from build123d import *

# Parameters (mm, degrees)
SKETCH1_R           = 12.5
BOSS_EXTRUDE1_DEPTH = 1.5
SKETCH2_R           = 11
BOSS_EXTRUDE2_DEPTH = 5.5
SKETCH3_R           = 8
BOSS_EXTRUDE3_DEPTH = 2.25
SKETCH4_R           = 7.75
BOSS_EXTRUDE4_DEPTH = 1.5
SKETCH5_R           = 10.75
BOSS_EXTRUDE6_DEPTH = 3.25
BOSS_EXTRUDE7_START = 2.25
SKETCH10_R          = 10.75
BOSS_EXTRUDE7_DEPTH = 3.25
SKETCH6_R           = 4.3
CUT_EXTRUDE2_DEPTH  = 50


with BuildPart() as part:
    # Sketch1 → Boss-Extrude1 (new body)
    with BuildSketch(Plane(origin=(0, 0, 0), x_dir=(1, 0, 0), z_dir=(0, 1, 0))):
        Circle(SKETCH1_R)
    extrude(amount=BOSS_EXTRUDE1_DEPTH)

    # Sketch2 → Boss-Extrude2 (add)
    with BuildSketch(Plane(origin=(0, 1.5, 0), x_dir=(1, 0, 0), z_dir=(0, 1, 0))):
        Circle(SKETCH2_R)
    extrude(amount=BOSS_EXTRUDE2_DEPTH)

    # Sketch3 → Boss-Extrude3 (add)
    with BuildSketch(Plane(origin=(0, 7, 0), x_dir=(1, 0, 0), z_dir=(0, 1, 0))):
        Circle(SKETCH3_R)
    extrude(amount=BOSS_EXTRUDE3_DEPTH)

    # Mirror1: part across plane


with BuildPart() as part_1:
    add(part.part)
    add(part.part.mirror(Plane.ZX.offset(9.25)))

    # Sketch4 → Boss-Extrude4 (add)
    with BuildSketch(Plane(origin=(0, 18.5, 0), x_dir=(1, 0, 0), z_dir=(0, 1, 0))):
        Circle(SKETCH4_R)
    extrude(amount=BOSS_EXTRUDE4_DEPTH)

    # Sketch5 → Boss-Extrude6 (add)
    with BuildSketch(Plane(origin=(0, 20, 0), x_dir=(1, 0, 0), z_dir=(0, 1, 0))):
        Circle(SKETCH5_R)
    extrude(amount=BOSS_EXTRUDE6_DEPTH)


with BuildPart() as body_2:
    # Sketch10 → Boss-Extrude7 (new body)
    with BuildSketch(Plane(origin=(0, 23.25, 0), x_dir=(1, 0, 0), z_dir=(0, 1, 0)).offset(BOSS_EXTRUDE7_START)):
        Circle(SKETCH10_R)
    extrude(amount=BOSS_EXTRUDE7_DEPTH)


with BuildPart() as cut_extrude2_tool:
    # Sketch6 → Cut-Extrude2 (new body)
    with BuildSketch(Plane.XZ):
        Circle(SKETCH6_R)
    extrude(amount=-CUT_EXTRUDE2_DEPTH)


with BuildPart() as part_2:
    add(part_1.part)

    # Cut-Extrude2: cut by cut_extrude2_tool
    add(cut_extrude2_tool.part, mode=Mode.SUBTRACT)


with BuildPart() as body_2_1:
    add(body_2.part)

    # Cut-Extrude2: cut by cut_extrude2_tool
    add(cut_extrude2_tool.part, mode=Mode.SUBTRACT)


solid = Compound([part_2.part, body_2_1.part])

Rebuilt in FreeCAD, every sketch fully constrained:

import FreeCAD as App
import Part
import Sketcher

doc = App.newDocument("Part")
params = doc.addObject("Spreadsheet::Sheet", "Params")
for row, (alias, value) in enumerate([
    ("sketch1_diameter", "25 mm"),
    ("pad1_length", "1.5 mm"),
    ("sketch2_diameter", "22 mm"),
    ("pad2_length", "5.5 mm"),
    ("sketch3_diameter", "16 mm"),
    ("pad3_length", "2.25 mm"),
    ("sketch4_diameter", "15.5 mm"),
    ("pad4_length", "1.5 mm"),
    ("sketch5_diameter", "21.5 mm"),
    ("pad5_length", "3.25 mm"),
    ("sketch6_diameter", "21.5 mm"),
    ("pad6_length", "3.25 mm"),
    ("sketch7_diameter", "8.6 mm"),
    ("pad7_length", "50 mm"),
], start=1):
    params.set(f"A{row}", alias)
    params.set(f"B{row}", "=" + value)
    params.setAlias(f"B{row}", alias)

body = doc.addObject("PartDesign::Body", "Body")

# Sketch on XZ plane
sketch1 = body.newObject("Sketcher::SketchObject", "Sketch")
sketch1.AttachmentSupport = (doc.getObject("XZ_Plane"), [""])
sketch1.MapMode = "FlatFace"
sketch1.addGeometry(Part.Circle(App.Vector(0, 0, 0), App.Vector(0, 0, 1), 12), False)
sketch1.addConstraint(Sketcher.Constraint("Coincident", 0, 3, -1, 1))
sketch1.addConstraint(Sketcher.Constraint("Diameter", 0, 25.0))
sketch1.setExpression("Constraints[1]", "Params.sketch1_diameter")
pad1 = body.newObject("PartDesign::Pad", "Pad")
pad1.Profile = sketch1
pad1.setExpression("Length", "Params.pad1_length")
pad1.Reversed = True

# Sketch on XZ plane
sketch2 = body.newObject("Sketcher::SketchObject", "Sketch001")
sketch2.AttachmentSupport = (doc.getObject("XZ_Plane"), [""])
sketch2.MapMode = "FlatFace"
sketch2.AttachmentOffset = App.Placement(App.Vector(0, 0, -1.5), App.Rotation())
sketch2.addGeometry(Part.Circle(App.Vector(0, 0, 0), App.Vector(0, 0, 1), 11), False)
sketch2.addConstraint(Sketcher.Constraint("Coincident", 0, 3, -1, 1))
sketch2.addConstraint(Sketcher.Constraint("Diameter", 0, 22.0))
sketch2.setExpression("Constraints[1]", "Params.sketch2_diameter")
pad2 = body.newObject("PartDesign::Pad", "Pad001")
pad2.Profile = sketch2
pad2.setExpression("Length", "Params.pad2_length")
pad2.Reversed = True

# Sketch on XZ plane
sketch3 = body.newObject("Sketcher::SketchObject", "Sketch002")
sketch3.AttachmentSupport = (doc.getObject("XZ_Plane"), [""])
sketch3.MapMode = "FlatFace"
sketch3.AttachmentOffset = App.Placement(App.Vector(0, 0, -7), App.Rotation())
sketch3.addGeometry(Part.Circle(App.Vector(0, 0, 0), App.Vector(0, 0, 1), 8), False)
sketch3.addConstraint(Sketcher.Constraint("Coincident", 0, 3, -1, 1))
sketch3.addConstraint(Sketcher.Constraint("Diameter", 0, 16.0))
sketch3.setExpression("Constraints[1]", "Params.sketch3_diameter")
pad3 = body.newObject("PartDesign::Pad", "Pad002")
pad3.Profile = sketch3
pad3.setExpression("Length", "Params.pad3_length")
pad3.Reversed = True
body2 = doc.addObject("PartDesign::Body", "Body001")
doc.recompute()

body2.BaseFeature = body
doc.recompute()

mirroring = doc.addObject("Part::Mirroring", "Mirroring")
mirroring.Source = body
mirroring.Base = App.Vector(0, 9.25, 0)
mirroring.Normal = App.Vector(0, 1, 0)
body3 = doc.addObject("PartDesign::Body", "Body002")
body3.BaseFeature = mirroring
boolean = body2.newObject("PartDesign::Boolean", "Boolean")
boolean.Type = "Fuse"
boolean.addObjects([body3])
doc.recompute()

# Sketch on XZ plane
sketch4 = body2.newObject("Sketcher::SketchObject", "Sketch003")
sketch4.AttachmentSupport = (doc.getObject("XZ_Plane001"), [""])
sketch4.MapMode = "FlatFace"
sketch4.AttachmentOffset = App.Placement(App.Vector(0, 0, -18.5), App.Rotation())
sketch4.addGeometry(Part.Circle(App.Vector(0, 0, 0), App.Vector(0, 0, 1), 8), False)
sketch4.addConstraint(Sketcher.Constraint("Coincident", 0, 3, -1, 1))
sketch4.addConstraint(Sketcher.Constraint("Diameter", 0, 15.5))
sketch4.setExpression("Constraints[1]", "Params.sketch4_diameter")
pad4 = body2.newObject("PartDesign::Pad", "Pad003")
pad4.Profile = sketch4
pad4.setExpression("Length", "Params.pad4_length")
pad4.Reversed = True

# Sketch on XZ plane
sketch5 = body2.newObject("Sketcher::SketchObject", "Sketch004")
sketch5.AttachmentSupport = (doc.getObject("XZ_Plane001"), [""])
sketch5.MapMode = "FlatFace"
sketch5.AttachmentOffset = App.Placement(App.Vector(0, 0, -20), App.Rotation())
sketch5.addGeometry(Part.Circle(App.Vector(0, 0, 0), App.Vector(0, 0, 1), 11), False)
sketch5.addConstraint(Sketcher.Constraint("Coincident", 0, 3, -1, 1))
sketch5.addConstraint(Sketcher.Constraint("Diameter", 0, 21.5))
sketch5.setExpression("Constraints[1]", "Params.sketch5_diameter")
pad5 = body2.newObject("PartDesign::Pad", "Pad004")
pad5.Profile = sketch5
pad5.setExpression("Length", "Params.pad5_length")
pad5.Reversed = True
body4 = doc.addObject("PartDesign::Body", "Body003")

# Sketch on XZ plane
sketch6 = body4.newObject("Sketcher::SketchObject", "Sketch005")
sketch6.AttachmentSupport = (doc.getObject("XZ_Plane003"), [""])
sketch6.MapMode = "FlatFace"
sketch6.AttachmentOffset = App.Placement(App.Vector(0, 0, -25.5), App.Rotation())
sketch6.addGeometry(Part.Circle(App.Vector(0, 0, 0), App.Vector(0, 0, 1), 11), False)
sketch6.addConstraint(Sketcher.Constraint("Coincident", 0, 3, -1, 1))
sketch6.addConstraint(Sketcher.Constraint("Diameter", 0, 21.5))
sketch6.setExpression("Constraints[1]", "Params.sketch6_diameter")
pad6 = body4.newObject("PartDesign::Pad", "Pad005")
pad6.Profile = sketch6
pad6.setExpression("Length", "Params.pad6_length")
pad6.Reversed = True
body5 = doc.addObject("PartDesign::Body", "Body004")

# Sketch on XZ plane
sketch7 = body5.newObject("Sketcher::SketchObject", "Sketch006")
sketch7.AttachmentSupport = (doc.getObject("XZ_Plane004"), [""])
sketch7.MapMode = "FlatFace"
sketch7.addGeometry(Part.Circle(App.Vector(0, 0, 0), App.Vector(0, 0, 1), 4.3), False)
sketch7.addConstraint(Sketcher.Constraint("Coincident", 0, 3, -1, 1))
sketch7.addConstraint(Sketcher.Constraint("Diameter", 0, 8.6))
sketch7.setExpression("Constraints[1]", "Params.sketch7_diameter")
pad7 = body5.newObject("PartDesign::Pad", "Pad006")
pad7.Profile = sketch7
pad7.setExpression("Length", "Params.pad7_length")
pad7.Reversed = True
doc.recompute()

body6 = doc.addObject("PartDesign::Body", "Body005")
body6.BaseFeature = body5
boolean2 = body2.newObject("PartDesign::Boolean", "Boolean001")
boolean2.Type = "Cut"
boolean2.addObjects([body6])
doc.recompute()

boolean3 = body4.newObject("PartDesign::Boolean", "Boolean002")
boolean3.Type = "Cut"
boolean3.addObjects([body5])
mirroring.Visibility = False

doc.recompute()
